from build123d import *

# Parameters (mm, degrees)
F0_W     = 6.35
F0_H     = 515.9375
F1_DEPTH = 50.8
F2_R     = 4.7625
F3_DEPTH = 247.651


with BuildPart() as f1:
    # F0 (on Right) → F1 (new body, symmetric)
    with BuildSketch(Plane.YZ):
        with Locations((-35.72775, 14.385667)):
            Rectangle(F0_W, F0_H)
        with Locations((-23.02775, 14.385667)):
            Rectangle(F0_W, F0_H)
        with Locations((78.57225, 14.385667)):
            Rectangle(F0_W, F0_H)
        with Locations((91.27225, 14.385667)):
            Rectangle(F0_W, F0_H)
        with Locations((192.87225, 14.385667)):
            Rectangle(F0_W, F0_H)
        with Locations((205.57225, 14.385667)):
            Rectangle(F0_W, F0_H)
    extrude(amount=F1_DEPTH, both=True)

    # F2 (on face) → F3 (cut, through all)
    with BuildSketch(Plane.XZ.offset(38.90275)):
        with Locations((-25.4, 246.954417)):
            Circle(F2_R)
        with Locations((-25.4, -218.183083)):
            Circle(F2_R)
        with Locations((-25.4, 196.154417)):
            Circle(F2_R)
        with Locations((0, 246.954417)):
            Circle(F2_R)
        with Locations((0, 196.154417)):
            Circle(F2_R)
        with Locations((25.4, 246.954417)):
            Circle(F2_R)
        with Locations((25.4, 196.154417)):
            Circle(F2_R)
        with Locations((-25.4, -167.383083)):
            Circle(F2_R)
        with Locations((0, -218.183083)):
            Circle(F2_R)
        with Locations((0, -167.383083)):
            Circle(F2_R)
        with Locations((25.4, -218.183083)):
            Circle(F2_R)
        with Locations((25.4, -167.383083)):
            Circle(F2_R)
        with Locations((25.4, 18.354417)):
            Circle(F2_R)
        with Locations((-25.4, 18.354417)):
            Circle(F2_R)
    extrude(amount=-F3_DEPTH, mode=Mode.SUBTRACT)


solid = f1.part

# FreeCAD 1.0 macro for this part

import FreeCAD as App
import Part
import Sketcher

V = App.Vector
Q = App.Units.Quantity

doc = App.newDocument("Part")
body = doc.addObject("PartDesign::Body", "Body")
body.AllowCompound = True

sketch1 = body.newObject("Sketcher::SketchObject", "Sketch")
sketch1.AttachmentSupport = (doc.getObject("YZ_Plane"), [""])
sketch1.MapMode = "FlatFace"
sketch1.addGeometry([
    Part.LineSegment(V(-38.90275, 272.354417, 0), V(-38.90275, -243.583083, 0)),
    Part.LineSegment(V(-38.90275, -243.583083, 0), V(-32.55275, -243.583083, 0)),
    Part.LineSegment(V(-32.55275, -243.583083, 0), V(-32.55275, 272.354417, 0)),
    Part.LineSegment(V(-32.55275, 272.354417, 0), V(-38.90275, 272.354417, 0)),
    Part.LineSegment(V(-26.20275, 272.354417, 0), V(-26.20275, -243.583083, 0)),
    Part.LineSegment(V(-26.20275, -243.583083, 0), V(-19.85275, -243.583083, 0)),
    Part.LineSegment(V(-19.85275, -243.583083, 0), V(-19.85275, 272.354417, 0)),
    Part.LineSegment(V(-19.85275, 272.354417, 0), V(-26.20275, 272.354417, 0)),
    Part.LineSegment(V(75.39725, 272.354417, 0), V(75.39725, -243.583083, 0)),
    Part.LineSegment(V(75.39725, -243.583083, 0), V(81.74725, -243.583083, 0)),
    Part.LineSegment(V(81.74725, -243.583083, 0), V(81.74725, 272.354417, 0)),
    Part.LineSegment(V(81.74725, 272.354417, 0), V(75.39725, 272.354417, 0)),
    Part.LineSegment(V(88.09725, 272.354417, 0), V(88.09725, -243.583083, 0)),
    Part.LineSegment(V(88.09725, -243.583083, 0), V(94.44725, -243.583083, 0)),
    Part.LineSegment(V(94.44725, -243.583083, 0), V(94.44725, 272.354417, 0)),
    Part.LineSegment(V(94.44725, 272.354417, 0), V(88.09725, 272.354417, 0)),
    Part.LineSegment(V(189.69725, 272.354417, 0), V(189.69725, -243.583083, 0)),
    Part.LineSegment(V(189.69725, -243.583083, 0), V(196.04725, -243.583083, 0)),
    Part.LineSegment(V(196.04725, -243.583083, 0), V(196.04725, 272.354417, 0)),
    Part.LineSegment(V(196.04725, 272.354417, 0), V(189.69725, 272.354417, 0)),
    Part.LineSegment(V(202.39725, 272.354417, 0), V(202.39725, -243.583083, 0)),
    Part.LineSegment(V(202.39725, -243.583083, 0), V(208.74725, -243.583083, 0)),
    Part.LineSegment(V(208.74725, -243.583083, 0), V(208.74725, 272.354417, 0)),
    Part.LineSegment(V(208.74725, 272.354417, 0), V(202.39725, 272.354417, 0)),
], False)
sketch1.addConstraint([
    Sketcher.Constraint("Coincident", 0, 2, 1, 1),
    Sketcher.Constraint("Coincident", 1, 2, 2, 1),
    Sketcher.Constraint("Coincident", 2, 2, 3, 1),
    Sketcher.Constraint("Coincident", 3, 2, 0, 1),
    Sketcher.Constraint("Coincident", 4, 2, 5, 1),
    Sketcher.Constraint("Coincident", 5, 2, 6, 1),
    Sketcher.Constraint("Coincident", 6, 2, 7, 1),
    Sketcher.Constraint("Coincident", 7, 2, 4, 1),
    Sketcher.Constraint("Coincident", 8, 2, 9, 1),
    Sketcher.Constraint("Coincident", 9, 2, 10, 1),
    Sketcher.Constraint("Coincident", 10, 2, 11, 1),
    Sketcher.Constraint("Coincident", 11, 2, 8, 1),
    Sketcher.Constraint("Coincident", 12, 2, 13, 1),
    Sketcher.Constraint("Coincident", 13, 2, 14, 1),
    Sketcher.Constraint("Coincident", 14, 2, 15, 1),
    Sketcher.Constraint("Coincident", 15, 2, 12, 1),
    Sketcher.Constraint("Coincident", 16, 2, 17, 1),
    Sketcher.Constraint("Coincident", 17, 2, 18, 1),
    Sketcher.Constraint("Coincident", 18, 2, 19, 1),
    Sketcher.Constraint("Coincident", 19, 2, 16, 1),
    Sketcher.Constraint("Coincident", 20, 2, 21, 1),
    Sketcher.Constraint("Coincident", 21, 2, 22, 1),
    Sketcher.Constraint("Coincident", 22, 2, 23, 1),
    Sketcher.Constraint("Coincident", 23, 2, 20, 1),
    Sketcher.Constraint("Vertical", 0),
    Sketcher.Constraint("Horizontal", 1),
    Sketcher.Constraint("Vertical", 2),
    Sketcher.Constraint("Horizontal", 3),
    Sketcher.Constraint("Vertical", 4),
    Sketcher.Constraint("Horizontal", 5),
    Sketcher.Constraint("Vertical", 6),
    Sketcher.Constraint("Horizontal", 7),
    Sketcher.Constraint("Vertical", 8),
    Sketcher.Constraint("Horizontal", 9),
    Sketcher.Constraint("Vertical", 10),
    Sketcher.Constraint("Horizontal", 11),
    Sketcher.Constraint("Vertical", 12),
    Sketcher.Constraint("Horizontal", 13),
    Sketcher.Constraint("Vertical", 14),
    Sketcher.Constraint("Horizontal", 15),
    Sketcher.Constraint("Vertical", 16),
    Sketcher.Constraint("Horizontal", 17),
    Sketcher.Constraint("Vertical", 18),
    Sketcher.Constraint("Horizontal", 19),
    Sketcher.Constraint("Vertical", 20),
    Sketcher.Constraint("Horizontal", 21),
    Sketcher.Constraint("Vertical", 22),
    Sketcher.Constraint("Horizontal", 23),
    Sketcher.Constraint("Horizontal", 1, 2, 4, 2),
    Sketcher.Constraint("Horizontal", 3, 2, 6, 2),
    Sketcher.Constraint("Horizontal", 5, 2, 8, 2),
    Sketcher.Constraint("Horizontal", 7, 2, 10, 2),
    Sketcher.Constraint("Horizontal", 9, 2, 12, 2),
    Sketcher.Constraint("Horizontal", 11, 2, 14, 2),
    Sketcher.Constraint("Horizontal", 13, 2, 16, 2),
    Sketcher.Constraint("Horizontal", 15, 2, 18, 2),
    Sketcher.Constraint("Horizontal", 17, 2, 20, 2),
    Sketcher.Constraint("Horizontal", 19, 2, 22, 2),
    Sketcher.Constraint("Equal", 3, 5),
    Sketcher.Constraint("Equal", 7, 9),
    Sketcher.Constraint("Equal", 11, 13),
    Sketcher.Constraint("Equal", 15, 17),
    Sketcher.Constraint("Equal", 19, 21),
    Sketcher.Constraint("DistanceX", 4, 2, 8, 2, Q("4 in")),
    Sketcher.Constraint("DistanceX", 2, 2, 14, 2, Q("5 in")),
    Sketcher.Constraint("DistanceX", 12, 2, 16, 2, Q("4 in")),
    Sketcher.Constraint("DistanceX", 10, 2, 22, 2, Q("5 in")),
    Sketcher.Constraint("DistanceX", 1, 1, 1, 2, Q("0.25 in")),
    Sketcher.Constraint("DistanceX", 0, 2, 4, 2, Q("0.5 in")),
    Sketcher.Constraint("DistanceY", 0, 2, 0, 1, Q("20.3125 in")),
    Sketcher.Constraint("DistanceX", 0, 2, -1, 1, 38.90275),
    Sketcher.Constraint("DistanceY", 0, 2, -1, 1, 243.583083),
])
pad1 = body.newObject("PartDesign::Pad", "Pad")
pad1.Profile = sketch1
pad1.Length = Q("4 in")
pad1.Midplane = True

sketch2 = body.newObject("Sketcher::SketchObject", "Sketch001")
sketch2.AttachmentSupport = (doc.getObject("XZ_Plane"), [""])
sketch2.MapMode = "FlatFace"
sketch2.AttachmentOffset = App.Placement(V(0, 0, 38.90275), App.Rotation())
sketch2.addGeometry([
    Part.Circle(V(-25.4, 246.954417, 0), V(0, 0, 1), 4.7625),
    Part.Circle(V(-25.4, -218.183083, 0), V(0, 0, 1), 4.7625),
    Part.Circle(V(-25.4, 196.154417, 0), V(0, 0, 1), 4.7625),
    Part.Circle(V(0, 246.954417, 0), V(0, 0, 1), 4.7625),
    Part.Circle(V(0, 196.154417, 0), V(0, 0, 1), 4.7625),
    Part.Circle(V(25.4, 246.954417, 0), V(0, 0, 1), 4.7625),
    Part.Circle(V(25.4, 196.154417, 0), V(0, 0, 1), 4.7625),
    Part.Circle(V(-25.4, -167.383083, 0), V(0, 0, 1), 4.7625),
    Part.Circle(V(0, -218.183083, 0), V(0, 0, 1), 4.7625),
    Part.Circle(V(0, -167.383083, 0), V(0, 0, 1), 4.7625),
    Part.Circle(V(25.4, -218.183083, 0), V(0, 0, 1), 4.7625),
    Part.Circle(V(25.4, -167.383083, 0), V(0, 0, 1), 4.7625),
    Part.Circle(V(25.4, 18.354417, 0), V(0, 0, 1), 4.7625),
    Part.Circle(V(-25.4, 18.354417, 0), V(0, 0, 1), 4.7625),
], False)
sketch2.addConstraint([
    Sketcher.Constraint("Equal", 0, 1),
    Sketcher.Constraint("Equal", 1, 2),
    Sketcher.Constraint("Equal", 2, 3),
    Sketcher.Constraint("Equal", 3, 4),
    Sketcher.Constraint("Equal", 4, 5),
    Sketcher.Constraint("Equal", 5, 6),
    Sketcher.Constraint("Equal", 6, 7),
    Sketcher.Constraint("Equal", 7, 8),
    Sketcher.Constraint("Equal", 8, 9),
    Sketcher.Constraint("Equal", 9, 10),
    Sketcher.Constraint("Equal", 10, 11),
    Sketcher.Constraint("Equal", 11, 12),
    Sketcher.Constraint("Equal", 12, 13),
    Sketcher.Constraint("Symmetric", 0, 3, 5, 3, -2),
    Sketcher.Constraint("Symmetric", 2, 3, 6, 3, -2),
    Sketcher.Constraint("Symmetric", 1, 3, 10, 3, -2),
    Sketcher.Constraint("Symmetric", 7, 3, 11, 3, -2),
    Sketcher.Constraint("Symmetric", 12, 3, 13, 3, -2),
    Sketcher.Constraint("PointOnObject", 3, 3, -2),
    Sketcher.Constraint("PointOnObject", 4, 3, -2),
    Sketcher.Constraint("PointOnObject", 8, 3, -2),
    Sketcher.Constraint("PointOnObject", 9, 3, -2),
    Sketcher.Constraint("Horizontal", 0, 3, 3, 3),
    Sketcher.Constraint("Horizontal", 2, 3, 4, 3),
    Sketcher.Constraint("Horizontal", 1, 3, 8, 3),
    Sketcher.Constraint("Horizontal", 7, 3, 9, 3),
    Sketcher.Constraint("Vertical", 0, 3, 1, 3),
    Sketcher.Constraint("Vertical", 1, 3, 2, 3),
    Sketcher.Constraint("Vertical", 2, 3, 7, 3),
    Sketcher.Constraint("Vertical", 11, 3, 12, 3),
    Sketcher.Constraint("Diameter", 0, Q("0.375 in")),
    Sketcher.Constraint("DistanceX", 0, 3, -1, 1, Q("1 in")),
    Sketcher.Constraint("DistanceY", 2, 3, 0, 3, Q("2 in")),
    Sketcher.Constraint("DistanceY", 1, 3, 7, 3, Q("2 in")),
    Sketcher.Constraint("DistanceY", 12, 3, 6, 3, Q("7 in")),
    Sketcher.Constraint("DistanceY", 1, 3, 0, 3, Q("18.3125 in")),
    Sketcher.Constraint("DistanceY", -1, 1, 0, 3, 246.954417),
])
pocket1 = body.newObject("PartDesign::Pocket", "Pocket")
pocket1.Profile = sketch2
pocket1.Type = "ThroughAll"

doc.recompute()
